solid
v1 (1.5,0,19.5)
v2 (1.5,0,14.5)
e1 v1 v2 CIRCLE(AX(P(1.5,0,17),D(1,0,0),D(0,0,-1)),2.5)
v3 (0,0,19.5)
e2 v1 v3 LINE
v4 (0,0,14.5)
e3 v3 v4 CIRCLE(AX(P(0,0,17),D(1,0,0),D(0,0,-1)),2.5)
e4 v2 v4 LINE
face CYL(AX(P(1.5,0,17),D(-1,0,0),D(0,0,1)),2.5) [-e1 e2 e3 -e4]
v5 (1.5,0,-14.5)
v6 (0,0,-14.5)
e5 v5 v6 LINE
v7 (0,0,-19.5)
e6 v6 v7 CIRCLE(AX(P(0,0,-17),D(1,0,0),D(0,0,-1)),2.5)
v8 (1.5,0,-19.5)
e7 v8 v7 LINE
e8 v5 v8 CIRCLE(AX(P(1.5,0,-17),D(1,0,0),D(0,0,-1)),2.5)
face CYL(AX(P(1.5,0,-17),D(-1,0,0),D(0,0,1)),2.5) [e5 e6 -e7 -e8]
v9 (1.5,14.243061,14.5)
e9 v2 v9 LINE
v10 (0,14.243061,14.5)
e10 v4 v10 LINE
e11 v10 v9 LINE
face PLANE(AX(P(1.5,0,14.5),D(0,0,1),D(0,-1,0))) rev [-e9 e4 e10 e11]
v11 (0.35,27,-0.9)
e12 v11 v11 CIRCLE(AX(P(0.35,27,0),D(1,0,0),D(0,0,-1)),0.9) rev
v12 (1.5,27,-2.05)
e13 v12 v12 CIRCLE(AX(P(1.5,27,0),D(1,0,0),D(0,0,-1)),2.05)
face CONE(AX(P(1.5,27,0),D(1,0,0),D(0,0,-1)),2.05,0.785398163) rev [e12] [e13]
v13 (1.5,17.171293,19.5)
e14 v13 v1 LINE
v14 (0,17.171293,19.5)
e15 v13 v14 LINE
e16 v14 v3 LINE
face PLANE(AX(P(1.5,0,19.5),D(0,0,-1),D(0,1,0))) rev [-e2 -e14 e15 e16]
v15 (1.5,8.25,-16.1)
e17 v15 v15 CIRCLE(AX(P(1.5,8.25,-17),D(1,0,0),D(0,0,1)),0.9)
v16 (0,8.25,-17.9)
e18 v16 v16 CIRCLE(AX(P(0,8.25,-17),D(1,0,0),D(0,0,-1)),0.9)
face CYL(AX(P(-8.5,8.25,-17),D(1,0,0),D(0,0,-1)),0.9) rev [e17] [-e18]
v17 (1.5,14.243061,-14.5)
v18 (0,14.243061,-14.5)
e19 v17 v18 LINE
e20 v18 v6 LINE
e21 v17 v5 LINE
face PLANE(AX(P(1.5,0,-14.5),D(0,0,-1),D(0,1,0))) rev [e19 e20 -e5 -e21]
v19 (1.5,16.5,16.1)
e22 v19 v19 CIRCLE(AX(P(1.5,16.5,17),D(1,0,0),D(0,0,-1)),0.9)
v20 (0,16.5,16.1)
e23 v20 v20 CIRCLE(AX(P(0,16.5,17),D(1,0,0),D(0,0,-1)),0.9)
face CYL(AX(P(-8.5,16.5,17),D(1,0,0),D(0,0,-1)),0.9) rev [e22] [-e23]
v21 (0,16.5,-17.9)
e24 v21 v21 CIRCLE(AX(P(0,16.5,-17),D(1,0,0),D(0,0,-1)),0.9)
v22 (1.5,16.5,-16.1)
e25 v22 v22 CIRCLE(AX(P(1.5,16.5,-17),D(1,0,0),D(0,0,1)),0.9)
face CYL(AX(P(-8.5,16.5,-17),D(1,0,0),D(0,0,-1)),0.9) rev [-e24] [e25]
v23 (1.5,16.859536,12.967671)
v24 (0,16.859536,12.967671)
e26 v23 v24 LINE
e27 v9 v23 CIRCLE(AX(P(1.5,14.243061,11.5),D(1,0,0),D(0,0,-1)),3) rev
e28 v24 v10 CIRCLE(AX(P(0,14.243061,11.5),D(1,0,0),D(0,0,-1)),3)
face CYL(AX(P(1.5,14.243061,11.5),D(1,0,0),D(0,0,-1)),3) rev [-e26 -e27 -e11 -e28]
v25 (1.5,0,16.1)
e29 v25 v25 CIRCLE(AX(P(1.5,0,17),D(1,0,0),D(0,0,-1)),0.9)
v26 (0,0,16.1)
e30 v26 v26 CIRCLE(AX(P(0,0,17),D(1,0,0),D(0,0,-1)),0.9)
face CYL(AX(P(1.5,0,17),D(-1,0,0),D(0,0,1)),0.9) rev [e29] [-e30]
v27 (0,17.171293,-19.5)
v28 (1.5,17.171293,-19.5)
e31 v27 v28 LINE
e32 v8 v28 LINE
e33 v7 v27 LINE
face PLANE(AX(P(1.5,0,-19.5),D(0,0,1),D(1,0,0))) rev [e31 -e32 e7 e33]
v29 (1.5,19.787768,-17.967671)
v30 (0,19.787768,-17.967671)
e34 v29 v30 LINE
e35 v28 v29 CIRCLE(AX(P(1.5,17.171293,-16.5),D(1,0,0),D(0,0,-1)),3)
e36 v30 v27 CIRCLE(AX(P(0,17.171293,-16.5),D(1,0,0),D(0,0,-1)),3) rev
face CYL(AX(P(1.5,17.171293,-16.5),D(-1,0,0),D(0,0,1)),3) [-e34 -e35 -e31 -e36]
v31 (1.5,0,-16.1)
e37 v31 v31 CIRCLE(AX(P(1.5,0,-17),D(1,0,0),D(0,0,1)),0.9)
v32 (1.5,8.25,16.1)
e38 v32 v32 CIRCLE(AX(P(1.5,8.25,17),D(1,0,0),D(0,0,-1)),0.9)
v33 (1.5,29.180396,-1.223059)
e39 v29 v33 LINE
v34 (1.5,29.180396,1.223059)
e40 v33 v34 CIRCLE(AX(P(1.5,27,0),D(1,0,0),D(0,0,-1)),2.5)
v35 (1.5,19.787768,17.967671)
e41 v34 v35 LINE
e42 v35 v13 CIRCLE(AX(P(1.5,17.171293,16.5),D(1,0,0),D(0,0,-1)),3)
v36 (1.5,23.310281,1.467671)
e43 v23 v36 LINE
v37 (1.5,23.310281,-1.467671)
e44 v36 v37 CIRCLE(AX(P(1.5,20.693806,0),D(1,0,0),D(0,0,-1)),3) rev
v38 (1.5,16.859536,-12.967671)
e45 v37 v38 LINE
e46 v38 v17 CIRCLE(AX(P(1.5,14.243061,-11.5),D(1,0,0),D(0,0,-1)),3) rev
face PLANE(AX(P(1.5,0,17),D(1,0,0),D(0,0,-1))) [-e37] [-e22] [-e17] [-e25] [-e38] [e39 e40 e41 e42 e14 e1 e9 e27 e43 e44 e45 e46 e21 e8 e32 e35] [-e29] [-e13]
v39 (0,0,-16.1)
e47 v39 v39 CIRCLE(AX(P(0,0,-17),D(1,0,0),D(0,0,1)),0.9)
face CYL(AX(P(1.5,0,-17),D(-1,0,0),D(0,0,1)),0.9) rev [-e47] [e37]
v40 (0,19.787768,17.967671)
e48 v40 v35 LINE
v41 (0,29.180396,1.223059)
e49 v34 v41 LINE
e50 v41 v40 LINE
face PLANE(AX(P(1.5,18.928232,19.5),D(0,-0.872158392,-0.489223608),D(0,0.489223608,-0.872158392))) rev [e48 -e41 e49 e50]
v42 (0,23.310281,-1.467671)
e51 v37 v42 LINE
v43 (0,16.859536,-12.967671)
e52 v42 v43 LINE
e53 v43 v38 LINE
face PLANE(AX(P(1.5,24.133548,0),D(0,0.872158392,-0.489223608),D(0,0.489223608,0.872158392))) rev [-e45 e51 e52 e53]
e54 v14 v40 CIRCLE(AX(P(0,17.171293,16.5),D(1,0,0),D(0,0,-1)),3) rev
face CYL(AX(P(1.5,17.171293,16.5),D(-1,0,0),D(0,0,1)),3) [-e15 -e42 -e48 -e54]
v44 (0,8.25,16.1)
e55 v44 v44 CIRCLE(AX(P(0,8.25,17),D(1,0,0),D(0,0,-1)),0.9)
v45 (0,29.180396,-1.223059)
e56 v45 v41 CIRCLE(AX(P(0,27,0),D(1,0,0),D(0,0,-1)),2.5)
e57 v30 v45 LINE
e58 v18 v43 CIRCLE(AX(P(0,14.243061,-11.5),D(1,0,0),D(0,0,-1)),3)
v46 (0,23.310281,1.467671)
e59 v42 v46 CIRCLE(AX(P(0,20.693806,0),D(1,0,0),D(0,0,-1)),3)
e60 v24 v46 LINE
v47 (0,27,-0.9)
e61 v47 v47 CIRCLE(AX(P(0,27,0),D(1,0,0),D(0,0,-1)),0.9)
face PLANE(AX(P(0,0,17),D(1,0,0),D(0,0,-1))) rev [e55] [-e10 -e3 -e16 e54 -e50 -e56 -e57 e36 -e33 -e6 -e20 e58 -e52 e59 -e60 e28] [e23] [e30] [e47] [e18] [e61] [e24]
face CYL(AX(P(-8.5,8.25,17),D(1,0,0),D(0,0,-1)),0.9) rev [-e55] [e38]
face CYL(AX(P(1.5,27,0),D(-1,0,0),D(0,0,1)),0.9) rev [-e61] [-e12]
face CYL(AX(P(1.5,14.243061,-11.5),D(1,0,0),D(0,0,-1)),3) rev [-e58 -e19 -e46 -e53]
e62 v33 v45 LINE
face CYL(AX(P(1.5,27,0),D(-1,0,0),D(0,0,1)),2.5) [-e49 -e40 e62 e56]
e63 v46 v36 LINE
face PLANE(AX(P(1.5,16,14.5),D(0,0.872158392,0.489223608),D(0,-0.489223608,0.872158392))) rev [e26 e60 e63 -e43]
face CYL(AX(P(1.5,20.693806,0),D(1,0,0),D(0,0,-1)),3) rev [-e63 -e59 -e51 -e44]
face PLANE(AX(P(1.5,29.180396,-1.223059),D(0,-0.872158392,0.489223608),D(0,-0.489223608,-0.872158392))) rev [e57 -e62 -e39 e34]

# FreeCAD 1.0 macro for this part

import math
import FreeCAD as App
import Part
import Sketcher
Q = App.Units.Quantity


def edges_at(feature, points):
    """Names of the edges that pass closest to the given points."""
    edges = feature.Shape.Edges
    near = lambda p: min(range(len(edges)), key=lambda i: edges[i].distToShape(Part.Vertex(*p))[0])
    return sorted({f"Edge{near(p) + 1}" for p in points})

doc = App.newDocument("Part")
body = doc.addObject("PartDesign::Body", "Body")

# Sketch on YZ plane
sketch1 = body.newObject("Sketcher::SketchObject", "Sketch")
sketch1.AttachmentSupport = (doc.getObject("YZ_Plane"), [""])
sketch1.MapMode = "FlatFace"
sketch1.addGeometry([
    Part.LineSegment(App.Vector(0, 14.5, 0), App.Vector(16, 14.5, 0)),  # 0
    Part.LineSegment(App.Vector(16, 14.5, 0), App.Vector(24.1, 0, 0)),  # 1
    Part.LineSegment(App.Vector(24.1, 0, 0), App.Vector(16, -14.5, 0)),  # 2
    Part.LineSegment(App.Vector(16, -14.5, 0), App.Vector(0, -14.5, 0)),  # 3
    Part.ArcOfCircle(Part.Circle(App.Vector(0, -17, 0), App.Vector(0, 0, 1), 2.5), math.radians(90), math.radians(270)),  # 4
    Part.LineSegment(App.Vector(0, -19.5, 0), App.Vector(18.9, -19.5, 0)),  # 5
    Part.LineSegment(App.Vector(18.9, -19.5, 0), App.Vector(29.2, -1.2, 0)),  # 6
    Part.ArcOfCircle(Part.Circle(App.Vector(27, 0, 0), App.Vector(0, 0, 1), 2.5), math.radians(-29), math.radians(29)),  # 7
    Part.LineSegment(App.Vector(29.2, 1.2, 0), App.Vector(18.9, 19.5, 0)),  # 8
    Part.LineSegment(App.Vector(18.9, 19.5, 0), App.Vector(0, 19.5, 0)),  # 9
    Part.ArcOfCircle(Part.Circle(App.Vector(0, 17, 0), App.Vector(0, 0, 1), 2.5), math.radians(90), math.radians(270)),  # 10
    Part.Circle(App.Vector(0, 17, 0), App.Vector(0, 0, 1), 0.9),  # 11
    Part.Circle(App.Vector(0, -17, 0), App.Vector(0, 0, 1), 0.9),  # 12
    Part.Circle(App.Vector(27, 0, 0), App.Vector(0, 0, 1), 0.9),  # 13
], False)
sketch1.addConstraint([
    Sketcher.Constraint("Coincident", 0, 2, 1, 1),
    Sketcher.Constraint("Coincident", 1, 2, 2, 1),
    Sketcher.Constraint("Coincident", 2, 2, 3, 1),
    Sketcher.Constraint("Tangent", 3, 2, 4, 1),
    Sketcher.Constraint("Tangent", 4, 2, 5, 1),
    Sketcher.Constraint("Coincident", 5, 2, 6, 1),
    Sketcher.Constraint("Tangent", 6, 2, 7, 1),
    Sketcher.Constraint("Tangent", 7, 2, 8, 1),
    Sketcher.Constraint("Coincident", 8, 2, 9, 1),
    Sketcher.Constraint("Tangent", 9, 2, 10, 1),
    Sketcher.Constraint("Tangent", 10, 2, 0, 1),
    Sketcher.Constraint("Horizontal", 0),
    Sketcher.Constraint("Horizontal", 3),
    Sketcher.Constraint("Horizontal", 5),
    Sketcher.Constraint("Horizontal", 9),
    Sketcher.Constraint("Coincident", 11, 3, 10, 3),
    Sketcher.Constraint("Coincident", 12, 3, 4, 3),
    Sketcher.Constraint("Coincident", 13, 3, 7, 3),
    Sketcher.Constraint("Equal", 4, 7),
    Sketcher.Constraint("Equal", 7, 10),
    Sketcher.Constraint("Equal", 11, 12),
    Sketcher.Constraint("Equal", 12, 13),
    Sketcher.Constraint("Symmetric", 4, 3, 10, 3, -1, 1),
    Sketcher.Constraint("Symmetric", 6, 2, 7, 2, -1),
    Sketcher.Constraint("PointOnObject", 4, 3, -2),
    Sketcher.Constraint("PointOnObject", 1, 2, -1),
    Sketcher.Constraint("Parallel", 2, 6),
    Sketcher.Constraint("Parallel", 1, 8),
    Sketcher.Constraint("Diameter", 11, Q("1.8 mm")),
    Sketcher.Constraint("Radius", 4, Q("2.5 mm")),
    Sketcher.Constraint("DistanceX", 0, 1, 0, 2, Q("16 mm")),
    Sketcher.Constraint("DistanceY", 4, 3, -1, 1, Q("17 mm")),
    Sketcher.Constraint("DistanceX", -1, 1, 7, 3, Q("27 mm")),
    Sketcher.Constraint("DistanceX", 5, 1, 5, 2, Q("18.928232 mm")),
])
pad1 = body.newObject("PartDesign::Pad", "Pad")
pad1.Profile = sketch1
pad1.Length = 1.5
doc.recompute()

fillet = body.newObject("PartDesign::Fillet", "Fillet")
fillet.Base = (pad1, edges_at(pad1, [
    (0.75, 18.928, 19.5),
    (0.75, 18.928, -19.5),
    (0.75, 16, -14.5),
    (0.75, 24.134, 0),
    (0.75, 16, 14.5),
]))
fillet.Radius = 3

# Sketch on YZ plane
sketch2 = body.newObject("Sketcher::SketchObject", "Sketch001")
sketch2.AttachmentSupport = (doc.getObject("YZ_Plane"), [""])
sketch2.MapMode = "FlatFace"
sketch2.AttachmentOffset = App.Placement(App.Vector(0, 0, 1.5), App.Rotation())
sketch2.addGeometry([
    Part.Circle(App.Vector(16.5, 17, 0), App.Vector(0, 0, 1), 0.9),
    Part.Circle(App.Vector(8.2, 17, 0), App.Vector(0, 0, 1), 0.9),
    Part.Circle(App.Vector(8.2, -17, 0), App.Vector(0, 0, 1), 0.9),
    Part.Circle(App.Vector(16.5, -17, 0), App.Vector(0, 0, 1), 0.9),
], False)
sketch2.addConstraint([
    Sketcher.Constraint("Equal", 0, 1),
    Sketcher.Constraint("Equal", 1, 2),
    Sketcher.Constraint("Equal", 2, 3),
    Sketcher.Constraint("Symmetric", 1, 3, 2, 3, -1),
    Sketcher.Constraint("Symmetric", 0, 3, 3, 3, -1),
    Sketcher.Constraint("Horizontal", 0, 3, 1, 3),
    Sketcher.Constraint("Diameter", 0, Q("1.8 mm")),
    Sketcher.Constraint("DistanceY", -1, 1, 0, 3, Q("17 mm")),
    Sketcher.Constraint("DistanceX", -1, 1, 0, 3, Q("16.5 mm")),
    Sketcher.Constraint("DistanceX", -1, 1, 1, 3, Q("8.25 mm")),
])
pocket1 = body.newObject("PartDesign::Pocket", "Pocket")
pocket1.Profile = sketch2
pocket1.Length = 10

# Sketch on XZ plane
sketch3 = body.newObject("Sketcher::SketchObject", "Sketch002")
sketch3.AttachmentSupport = (doc.getObject("XZ_Plane"), [""])
sketch3.MapMode = "FlatFace"
sketch3.AttachmentOffset = App.Placement(App.Vector(0, 0, -27), App.Rotation())
sketch3.addGeometry([
    Part.LineSegment(App.Vector(0, 0, 0), App.Vector(1.5, 0, 0)),  # 0
    Part.LineSegment(App.Vector(1.5, 0, 0), App.Vector(1.5, -2.05, 0)),  # 1
    Part.LineSegment(App.Vector(1.5, -2.05, 0), App.Vector(0.3, -0.85, 0)),  # 2
    Part.LineSegment(App.Vector(0.3, -0.85, 0), App.Vector(0, -0.85, 0)),  # 3
    Part.LineSegment(App.Vector(0, -0.85, 0), App.Vector(0, 0, 0)),  # 4
], False)
sketch3.addConstraint([
    Sketcher.Constraint("Coincident", 0, 2, 1, 1),
    Sketcher.Constraint("Coincident", 1, 2, 2, 1),
    Sketcher.Constraint("Coincident", 2, 2, 3, 1),
    Sketcher.Constraint("Coincident", 3, 2, 4, 1),
    Sketcher.Constraint("Coincident", 4, 2, 0, 1),
    Sketcher.Constraint("Horizontal", 0),
    Sketcher.Constraint("Vertical", 1),
    Sketcher.Constraint("Horizontal", 3),
    Sketcher.Constraint("Vertical", 4),
    Sketcher.Constraint("Coincident", 4, 2, -1, 1),
    Sketcher.Constraint("Angle", 2, Q("135 deg")),
    Sketcher.Constraint("DistanceX", 0, 1, 0, 2, Q("1.5 mm")),
    Sketcher.Constraint("DistanceX", 3, 2, 3, 1, Q("0.3 mm")),
    Sketcher.Constraint("DistanceY", 1, 2, 1, 1, Q("2.05 mm")),
])
groove = body.newObject("PartDesign::Groove", "Groove")
groove.Profile = sketch3
groove.ReferenceAxis = (sketch3, ["H_Axis"])
groove.Angle = 360

doc.recompute()
